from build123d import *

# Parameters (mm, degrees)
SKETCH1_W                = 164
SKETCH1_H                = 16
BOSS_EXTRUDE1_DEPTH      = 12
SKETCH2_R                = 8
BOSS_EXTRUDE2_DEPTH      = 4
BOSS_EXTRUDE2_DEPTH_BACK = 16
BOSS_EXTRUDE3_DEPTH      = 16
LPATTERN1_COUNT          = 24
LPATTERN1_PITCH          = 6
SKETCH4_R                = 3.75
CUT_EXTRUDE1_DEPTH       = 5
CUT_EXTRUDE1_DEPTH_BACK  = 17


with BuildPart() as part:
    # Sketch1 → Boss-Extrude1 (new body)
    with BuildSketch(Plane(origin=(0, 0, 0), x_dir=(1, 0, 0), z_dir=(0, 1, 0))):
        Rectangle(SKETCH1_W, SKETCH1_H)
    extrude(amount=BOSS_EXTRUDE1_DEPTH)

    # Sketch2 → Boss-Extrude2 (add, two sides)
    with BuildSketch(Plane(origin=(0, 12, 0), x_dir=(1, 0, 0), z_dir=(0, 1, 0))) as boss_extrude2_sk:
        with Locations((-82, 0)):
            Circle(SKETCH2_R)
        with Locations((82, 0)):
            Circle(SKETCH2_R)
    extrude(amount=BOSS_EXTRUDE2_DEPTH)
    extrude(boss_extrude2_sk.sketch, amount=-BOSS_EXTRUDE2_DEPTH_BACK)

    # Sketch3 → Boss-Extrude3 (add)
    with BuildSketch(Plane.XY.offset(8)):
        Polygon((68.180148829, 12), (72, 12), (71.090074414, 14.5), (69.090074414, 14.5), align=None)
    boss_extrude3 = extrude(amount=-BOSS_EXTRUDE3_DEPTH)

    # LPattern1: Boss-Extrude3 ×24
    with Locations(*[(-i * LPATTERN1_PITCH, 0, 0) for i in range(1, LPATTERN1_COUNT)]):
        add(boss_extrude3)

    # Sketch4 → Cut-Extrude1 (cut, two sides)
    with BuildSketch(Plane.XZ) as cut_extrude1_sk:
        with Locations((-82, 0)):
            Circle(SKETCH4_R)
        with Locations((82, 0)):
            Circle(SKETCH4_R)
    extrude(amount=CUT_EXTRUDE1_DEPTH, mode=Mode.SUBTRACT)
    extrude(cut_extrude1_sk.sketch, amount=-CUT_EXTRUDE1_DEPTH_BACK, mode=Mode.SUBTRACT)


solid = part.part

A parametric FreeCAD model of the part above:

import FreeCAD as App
import Part
import Sketcher
from FreeCAD import Vector
Q = App.Units.Quantity


def add_polygon(sketch, points):
    """Adds a closed chain of lines whose ends are joined by coincident constraints."""
    first, n = sketch.GeometryCount, len(points)
    for a, b in zip(points, points[1:] + points[:1]):
        sketch.addGeometry(Part.LineSegment(App.Vector(*a, 0), App.Vector(*b, 0)), False)
    for i in range(n):
        sketch.addConstraint(Sketcher.Constraint("Coincident", first + i, 2, first + (i + 1) % n, 1))

doc = App.newDocument("Part")
params = doc.addObject("Spreadsheet::Sheet", "Params")
for row, (alias, value) in enumerate([
    ("sketch1_width", "164 mm"),
    ("sketch1_height", "16 mm"),
    ("pad1_length", "12 mm"),
    ("sketch2_diameter", "16 mm"),
    ("pad2_length", "4 mm"),
    ("pad2_length2", "16 mm"),
    ("sketch3_width", "2 mm"),
    ("pad3_length", "16 mm"),
    ("linearpattern_pitch", "6 mm"),
    ("sketch4_diameter", "7.5 mm"),
], start=1):
    params.set(f"A{row}", alias)
    params.set(f"B{row}", "=" + value)
    params.setAlias(f"B{row}", alias)

body = doc.addObject("PartDesign::Body", "Body")

sketch1 = doc.addObject("Sketcher::SketchObject", "Sketch")
body.addObject(sketch1)
sketch1.AttachmentSupport = (doc.XZ_Plane, [""])
sketch1.MapMode = "FlatFace"
add_polygon(sketch1, [(-82, -8), (-82, 8), (82, 8), (82, -8)])
sketch1.addConstraint(Sketcher.Constraint("Vertical", 0))
sketch1.addConstraint(Sketcher.Constraint("Horizontal", 1))
sketch1.addConstraint(Sketcher.Constraint("Vertical", 2))
sketch1.addConstraint(Sketcher.Constraint("Horizontal", 3))
sketch1.addConstraint(Sketcher.Constraint("Symmetric", 0, 2, 2, 2, -1, 1))
sketch1.addConstraint(Sketcher.Constraint("DistanceX", 1, 1, 1, 2, 164.0))
sketch1.addConstraint(Sketcher.Constraint("DistanceY", 0, 1, 0, 2, 16.0))
sketch1.setExpression("Constraints[9]", "Params.sketch1_width")
sketch1.setExpression("Constraints[10]", "Params.sketch1_height")
pad1 = doc.addObject("PartDesign::Pad", "Pad")
body.addObject(pad1)
pad1.Profile = sketch1
pad1.setExpression("Length", "Params.pad1_length")
pad1.Reversed = True

sketch2 = doc.addObject("Sketcher::SketchObject", "Sketch001")
body.addObject(sketch2)
sketch2.AttachmentSupport = (doc.XZ_Plane, [""])
sketch2.MapMode = "FlatFace"
sketch2.AttachmentOffset = App.Placement(Vector(0, 0, -12), App.Rotation())
sketch2.addGeometry(Part.Circle(Vector(-82, 0, 0), Vector(0, 0, 1), 8), False)
sketch2.addGeometry(Part.Circle(Vector(82, 0, 0), Vector(0, 0, 1), 8), False)
sketch2.addConstraint(Sketcher.Constraint("Equal", 0, 1))
sketch2.addConstraint(Sketcher.Constraint("Symmetric", 0, 3, 1, 3, -1, 1))
sketch2.addConstraint(Sketcher.Constraint("PointOnObject", 0, 3, -1))
sketch2.addConstraint(Sketcher.Constraint("Diameter", 0, 16.0))
sketch2.addConstraint(Sketcher.Constraint("DistanceX", 0, 3, -1, 1, 82.0))
sketch2.setExpression("Constraints[3]", "Params.sketch2_diameter")
pad2 = doc.addObject("PartDesign::Pad", "Pad001")
body.addObject(pad2)
pad2.Profile = sketch2
pad2.Type = "TwoLengths"
pad2.setExpression("Length", "Params.pad2_length")
pad2.setExpression("Length2", "Params.pad2_length2")
pad2.Reversed = True

sketch3 = doc.addObject("Sketcher::SketchObject", "Sketch002")
body.addObject(sketch3)
sketch3.AttachmentSupport = (doc.XY_Plane, [""])
sketch3.MapMode = "FlatFace"
sketch3.AttachmentOffset = App.Placement(Vector(0, 0, 8), App.Rotation())
add_polygon(sketch3, [(68.2, 12), (72, 12), (71.1, 14.5), (69.1, 14.5)])
sketch3.addConstraint(Sketcher.Constraint("Horizontal", 0))
sketch3.addConstraint(Sketcher.Constraint("Horizontal", 2))
sketch3.addConstraint(Sketcher.Constraint("Equal", 1, 3))
sketch3.addConstraint(Sketcher.Constraint("DistanceX", 2, 2, 2, 1, 2.0))
sketch3.addConstraint(Sketcher.Constraint("Angle", 1, Q("110 deg")))
sketch3.addConstraint(Sketcher.Constraint("DistanceX", -1, 1, 0, 2, 72.0))
sketch3.addConstraint(Sketcher.Constraint("DistanceY", -1, 1, 0, 2, 12.0))
sketch3.addConstraint(Sketcher.Constraint("DistanceY", -1, 1, 1, 2, 14.5))
sketch3.setExpression("Constraints[7]", "Params.sketch3_width")
pad3 = doc.addObject("PartDesign::Pad", "Pad002")
body.addObject(pad3)
pad3.Profile = sketch3
pad3.setExpression("Length", "Params.pad3_length")
pad3.Reversed = True
doc.recompute()

linearpattern = doc.addObject("PartDesign::LinearPattern", "LinearPattern")
body.addObject(linearpattern)
linearpattern.Originals = [pad3]
linearpattern.Direction = (doc.X_Axis, [""])
linearpattern.Mode = "offset"
linearpattern.setExpression("Offset", "Params.linearpattern_pitch")
linearpattern.Occurrences = 24
linearpattern.Reversed = True
body.Tip = linearpattern

sketch4 = doc.addObject("Sketcher::SketchObject", "Sketch003")
body.addObject(sketch4)
sketch4.AttachmentSupport = (doc.XZ_Plane, [""])
sketch4.MapMode = "FlatFace"
sketch4.addGeometry(Part.Circle(Vector(-82, 0, 0), Vector(0, 0, 1), 3.8), False)
sketch4.addGeometry(Part.Circle(Vector(82, 0, 0), Vector(0, 0, 1), 3.8), False)
sketch4.addConstraint(Sketcher.Constraint("Equal", 0, 1))
sketch4.addConstraint(Sketcher.Constraint("Symmetric", 0, 3, 1, 3, -1, 1))
sketch4.addConstraint(Sketcher.Constraint("PointOnObject", 0, 3, -1))
sketch4.addConstraint(Sketcher.Constraint("Diameter", 0, 7.5))
sketch4.addConstraint(Sketcher.Constraint("DistanceX", 0, 3, -1, 1, 82.0))
sketch4.setExpression("Constraints[3]", "Params.sketch4_diameter")
pocket1 = doc.addObject("PartDesign::Pocket", "Pocket")
body.addObject(pocket1)
pocket1.Profile = sketch4
pocket1.Type = "ThroughAll"
pocket1.Midplane = True

doc.recompute()
